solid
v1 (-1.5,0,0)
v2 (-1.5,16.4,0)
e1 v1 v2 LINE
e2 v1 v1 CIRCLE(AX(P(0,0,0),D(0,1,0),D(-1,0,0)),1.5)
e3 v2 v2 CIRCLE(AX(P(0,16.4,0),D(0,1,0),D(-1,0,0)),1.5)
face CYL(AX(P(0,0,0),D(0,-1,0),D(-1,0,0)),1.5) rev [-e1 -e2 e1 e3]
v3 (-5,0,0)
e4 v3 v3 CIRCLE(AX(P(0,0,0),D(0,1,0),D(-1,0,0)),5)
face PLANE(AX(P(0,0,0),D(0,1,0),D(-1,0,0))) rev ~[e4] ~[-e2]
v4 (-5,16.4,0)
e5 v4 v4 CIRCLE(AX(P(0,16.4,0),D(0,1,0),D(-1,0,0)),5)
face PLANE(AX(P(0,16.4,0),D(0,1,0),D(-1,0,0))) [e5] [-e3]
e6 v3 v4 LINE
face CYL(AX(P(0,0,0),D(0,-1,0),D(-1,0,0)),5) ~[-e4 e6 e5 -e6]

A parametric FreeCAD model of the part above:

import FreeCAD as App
import Part
import Sketcher

V = App.Vector

doc = App.newDocument("Part")
body = doc.addObject("PartDesign::Body", "Body")

# Sketch on XZ plane
sketch1 = body.newObject("Sketcher::SketchObject", "Sketch")
sketch1.AttachmentSupport = (doc.getObject("XZ_Plane"), [""])
sketch1.MapMode = "FlatFace"
sketch1.addGeometry([
    Part.Circle(V(0, 0, 0), V(0, 0, 1), 5),
    Part.Circle(V(0, 0, 0), V(0, 0, 1), 1.5),
], False)
sketch1.addConstraint([
    Sketcher.Constraint("Coincident", 0, 3, -1, 1),
    Sketcher.Constraint("Coincident", 1, 3, -1, 1),
    Sketcher.Constraint("Diameter", 0, 10.0),
    Sketcher.Constraint("Diameter", 1, 3.0),
])
pad1 = body.newObject("PartDesign::Pad", "Pad")
pad1.Profile = sketch1
pad1.Length = 16.4
pad1.Reversed = True

doc.recompute()
